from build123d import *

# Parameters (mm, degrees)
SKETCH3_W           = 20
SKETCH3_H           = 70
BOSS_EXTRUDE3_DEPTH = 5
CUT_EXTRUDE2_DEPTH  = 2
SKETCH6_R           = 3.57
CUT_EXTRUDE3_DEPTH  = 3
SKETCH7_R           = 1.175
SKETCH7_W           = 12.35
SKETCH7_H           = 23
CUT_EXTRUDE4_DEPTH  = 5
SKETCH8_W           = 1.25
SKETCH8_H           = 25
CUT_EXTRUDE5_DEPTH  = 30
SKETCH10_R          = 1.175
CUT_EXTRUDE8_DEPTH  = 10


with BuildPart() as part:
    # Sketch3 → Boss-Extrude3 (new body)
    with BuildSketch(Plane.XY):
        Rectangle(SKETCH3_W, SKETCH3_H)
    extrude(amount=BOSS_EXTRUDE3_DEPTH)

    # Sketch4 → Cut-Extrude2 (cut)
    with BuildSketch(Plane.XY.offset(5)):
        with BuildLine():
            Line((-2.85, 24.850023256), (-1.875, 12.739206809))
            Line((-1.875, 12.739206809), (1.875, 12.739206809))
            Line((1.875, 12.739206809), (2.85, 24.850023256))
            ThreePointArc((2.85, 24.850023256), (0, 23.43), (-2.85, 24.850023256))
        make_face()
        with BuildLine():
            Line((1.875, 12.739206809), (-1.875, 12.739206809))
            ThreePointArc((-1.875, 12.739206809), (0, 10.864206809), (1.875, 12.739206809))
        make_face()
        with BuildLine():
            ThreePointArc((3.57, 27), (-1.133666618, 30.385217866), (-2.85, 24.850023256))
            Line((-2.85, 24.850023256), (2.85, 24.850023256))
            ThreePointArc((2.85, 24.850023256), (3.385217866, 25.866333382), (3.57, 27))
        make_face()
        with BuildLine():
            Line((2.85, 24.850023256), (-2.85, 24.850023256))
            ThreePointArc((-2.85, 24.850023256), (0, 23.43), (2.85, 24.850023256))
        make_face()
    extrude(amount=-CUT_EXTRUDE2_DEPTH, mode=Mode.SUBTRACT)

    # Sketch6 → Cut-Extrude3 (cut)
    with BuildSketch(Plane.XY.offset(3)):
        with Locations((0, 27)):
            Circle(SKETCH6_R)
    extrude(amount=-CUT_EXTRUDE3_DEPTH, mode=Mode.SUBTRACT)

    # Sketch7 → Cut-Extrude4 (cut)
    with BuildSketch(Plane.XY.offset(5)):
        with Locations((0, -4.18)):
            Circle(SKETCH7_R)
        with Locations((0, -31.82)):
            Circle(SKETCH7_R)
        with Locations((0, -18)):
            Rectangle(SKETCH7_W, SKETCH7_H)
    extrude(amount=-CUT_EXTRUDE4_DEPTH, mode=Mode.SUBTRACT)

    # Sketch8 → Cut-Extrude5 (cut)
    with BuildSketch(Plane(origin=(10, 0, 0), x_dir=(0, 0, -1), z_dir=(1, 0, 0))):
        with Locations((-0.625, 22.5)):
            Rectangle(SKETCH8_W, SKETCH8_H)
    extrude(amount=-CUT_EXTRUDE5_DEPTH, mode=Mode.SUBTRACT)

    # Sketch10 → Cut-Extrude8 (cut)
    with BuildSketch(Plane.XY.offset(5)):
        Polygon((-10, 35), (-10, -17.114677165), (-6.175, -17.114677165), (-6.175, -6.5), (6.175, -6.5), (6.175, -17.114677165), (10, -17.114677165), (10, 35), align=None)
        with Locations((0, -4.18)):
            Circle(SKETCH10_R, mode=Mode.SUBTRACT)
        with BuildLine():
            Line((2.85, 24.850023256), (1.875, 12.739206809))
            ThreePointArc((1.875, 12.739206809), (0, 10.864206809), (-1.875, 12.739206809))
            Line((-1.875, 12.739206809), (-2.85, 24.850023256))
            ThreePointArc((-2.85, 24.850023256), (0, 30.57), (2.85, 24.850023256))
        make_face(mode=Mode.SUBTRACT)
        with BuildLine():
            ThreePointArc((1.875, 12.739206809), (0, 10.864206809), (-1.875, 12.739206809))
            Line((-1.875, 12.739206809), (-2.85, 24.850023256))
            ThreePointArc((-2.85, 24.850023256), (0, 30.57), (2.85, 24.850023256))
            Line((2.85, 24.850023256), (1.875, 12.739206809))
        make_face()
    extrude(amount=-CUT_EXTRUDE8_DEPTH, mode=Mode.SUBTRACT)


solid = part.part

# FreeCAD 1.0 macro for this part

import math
import FreeCAD as App
import Part
import Sketcher
Q = App.Units.Quantity


def add_polygon(sketch, points):
    """Adds a closed chain of lines whose ends are joined by coincident constraints."""
    first, n = sketch.GeometryCount, len(points)
    for a, b in zip(points, points[1:] + points[:1]):
        sketch.addGeometry(Part.LineSegment(App.Vector(*a, 0), App.Vector(*b, 0)), False)
    for i in range(n):
        sketch.addConstraint(Sketcher.Constraint("Coincident", first + i, 2, first + (i + 1) % n, 1))

doc = App.newDocument("Part")
body = doc.addObject("PartDesign::Body", "Body")

# Sketch on XY plane
sketch1 = body.newObject("Sketcher::SketchObject", "Sketch")
sketch1.AttachmentSupport = (doc.getObject("XY_Plane"), [""])
sketch1.MapMode = "FlatFace"
add_polygon(sketch1, [(-10, 35), (-10, -35), (10, -35), (10, 35)])  # lines 0-3
sketch1.addConstraint([
    Sketcher.Constraint("Vertical", 0),
    Sketcher.Constraint("Horizontal", 1),
    Sketcher.Constraint("Vertical", 2),
    Sketcher.Constraint("Horizontal", 3),
    Sketcher.Constraint("Symmetric", 0, 2, 2, 2, -1, 1),
    Sketcher.Constraint("DistanceX", 1, 1, 1, 2, Q("20 mm")),
    Sketcher.Constraint("DistanceY", 0, 2, 0, 1, Q("70 mm")),
])
pad1 = body.newObject("PartDesign::Pad", "Pad")
pad1.Profile = sketch1
pad1.Length = 5

# Sketch on XY plane
sketch2 = body.newObject("Sketcher::SketchObject", "Sketch001")
sketch2.AttachmentSupport = (doc.getObject("XY_Plane"), [""])
sketch2.MapMode = "FlatFace"
sketch2.AttachmentOffset = App.Placement(App.Vector(0, 0, 5), App.Rotation())
sketch2.addGeometry([
    Part.LineSegment(App.Vector(-2.85, 24.850023, 0), App.Vector(-1.875, 12.739207, 0)),  # 0
    Part.ArcOfCircle(Part.Circle(App.Vector(0, 12.739207, 0), App.Vector(0, 0, 1), 1.875), math.radians(180), math.radians(360)),  # 1
    Part.LineSegment(App.Vector(1.875, 12.739207, 0), App.Vector(2.85, 24.850023, 0)),  # 2
    Part.ArcOfCircle(Part.Circle(App.Vector(0, 27, 0), App.Vector(0, 0, 1), 3.57), math.radians(-37.030092), math.radians(0)),  # 3
    Part.ArcOfCircle(Part.Circle(App.Vector(0, 27, 0), App.Vector(0, 0, 1), 3.57), math.radians(0), math.radians(217.030092)),  # 4
], False)
sketch2.addConstraint([
    Sketcher.Constraint("Coincident", 0, 2, 1, 1),
    Sketcher.Constraint("Coincident", 1, 2, 2, 1),
    Sketcher.Constraint("Coincident", 2, 2, 3, 1),
    Sketcher.Constraint("Tangent", 3, 2, 4, 1),
    Sketcher.Constraint("Coincident", 4, 2, 0, 1),
    Sketcher.Constraint("Equal", 3, 4),
    Sketcher.Constraint("Symmetric", 0, 2, 1, 2, -2),
    Sketcher.Constraint("Symmetric", 2, 2, 4, 2, -2),
    Sketcher.Constraint("Horizontal", 1, 3, 0, 2),
    Sketcher.Constraint("Horizontal", 4, 3, 3, 2),
    Sketcher.Constraint("Radius", 3, Q("3.57 mm")),
    Sketcher.Constraint("DistanceY", -1, 1, 3, 3, Q("27 mm")),
    Sketcher.Constraint("Radius", 1, Q("1.875 mm")),
    Sketcher.Constraint("DistanceX", 4, 2, 2, 2, Q("5.7 mm")),
    Sketcher.Constraint("Distance", 0, Q("12.15 mm")),
])
pocket1 = body.newObject("PartDesign::Pocket", "Pocket")
pocket1.Profile = sketch2
pocket1.Length = 2

# Sketch on XY plane
sketch3 = body.newObject("Sketcher::SketchObject", "Sketch002")
sketch3.AttachmentSupport = (doc.getObject("XY_Plane"), [""])
sketch3.MapMode = "FlatFace"
sketch3.AttachmentOffset = App.Placement(App.Vector(0, 0, 3), App.Rotation())
sketch3.addGeometry(Part.Circle(App.Vector(0, 27, 0), App.Vector(0, 0, 1), 3.57), False)
sketch3.addConstraint([
    Sketcher.Constraint("PointOnObject", 0, 3, -2),
    Sketcher.Constraint("Diameter", 0, Q("7.14 mm")),
    Sketcher.Constraint("DistanceY", -1, 1, 0, 3, Q("27 mm")),
])
pocket2 = body.newObject("PartDesign::Pocket", "Pocket001")
pocket2.Profile = sketch3
pocket2.Length = 3

# Sketch on XY plane
sketch4 = body.newObject("Sketcher::SketchObject", "Sketch003")
sketch4.AttachmentSupport = (doc.getObject("XY_Plane"), [""])
sketch4.MapMode = "FlatFace"
sketch4.AttachmentOffset = App.Placement(App.Vector(0, 0, 5), App.Rotation())
sketch4.addGeometry(Part.Circle(App.Vector(0, -4.18, 0), App.Vector(0, 0, 1), 1.175), False)  # 0
sketch4.addGeometry(Part.Circle(App.Vector(0, -31.82, 0), App.Vector(0, 0, 1), 1.175), False)  # 1
add_polygon(sketch4, [(-6.175, -6.5), (-6.175, -29.5), (6.175, -29.5), (6.175, -6.5)])  # lines 2-5
sketch4.addConstraint([
    Sketcher.Constraint("Vertical", 2),
    Sketcher.Constraint("Horizontal", 3),
    Sketcher.Constraint("Vertical", 4),
    Sketcher.Constraint("Horizontal", 5),
    Sketcher.Constraint("Equal", 0, 1),
    Sketcher.Constraint("PointOnObject", 0, 3, -2),
    Sketcher.Constraint("PointOnObject", 1, 3, -2),
    Sketcher.Constraint("Diameter", 0, Q("2.35 mm")),
    Sketcher.Constraint("DistanceY", 2, 2, 2, 1, Q("23 mm")),
    Sketcher.Constraint("DistanceX", 3, 1, 3, 2, Q("12.35 mm")),
    Sketcher.Constraint("DistanceY", 2, 2, -1, 1, Q("29.5 mm")),
    Sketcher.Constraint("DistanceY", 0, 3, -1, 1, Q("4.18 mm")),
    Sketcher.Constraint("DistanceY", 1, 3, -1, 1, Q("31.82 mm")),
    Sketcher.Constraint("DistanceX", 2, 2, -1, 1, Q("6.175 mm")),
])
pocket3 = body.newObject("PartDesign::Pocket", "Pocket002")
pocket3.Profile = sketch4
pocket3.Length = 5

# Sketch on YZ plane
sketch5 = body.newObject("Sketcher::SketchObject", "Sketch004")
sketch5.AttachmentSupport = (doc.getObject("YZ_Plane"), [""])
sketch5.MapMode = "FlatFace"
sketch5.AttachmentOffset = App.Placement(App.Vector(0, 0, 10), App.Rotation())
add_polygon(sketch5, [(35, 1.25), (10, 1.25), (10, 0), (35, 0)])  # lines 0-3
sketch5.addConstraint([
    Sketcher.Constraint("Horizontal", 0),
    Sketcher.Constraint("Vertical", 1),
    Sketcher.Constraint("Horizontal", 2),
    Sketcher.Constraint("Vertical", 3),
    Sketcher.Constraint("PointOnObject", 1, 2, -1),
    Sketcher.Constraint("DistanceX", 0, 2, 0, 1, Q("25 mm")),
    Sketcher.Constraint("DistanceX", -1, 1, 0, 2, Q("10 mm")),
    Sketcher.Constraint("DistanceY", 1, 2, 1, 1, Q("1.25 mm")),
])
pocket4 = body.newObject("PartDesign::Pocket", "Pocket003")
pocket4.Profile = sketch5
pocket4.Length = 30

# Sketch on XY plane
sketch6 = body.newObject("Sketcher::SketchObject", "Sketch005")
sketch6.AttachmentSupport = (doc.getObject("XY_Plane"), [""])
sketch6.MapMode = "FlatFace"
sketch6.AttachmentOffset = App.Placement(App.Vector(0, 0, 5), App.Rotation())
add_polygon(sketch6, [(-10, 35), (-10, -17.114677), (-6.175, -17.114677), (-6.175, -6.5), (6.175, -6.5), (6.175, -17.114677), (10, -17.114677), (10, 35)])  # lines 0-7
sketch6.addGeometry(Part.Circle(App.Vector(0, -4.18, 0), App.Vector(0, 0, 1), 1.175), False)  # 8
sketch6.addConstraint([
    Sketcher.Constraint("Vertical", 0),
    Sketcher.Constraint("Horizontal", 1),
    Sketcher.Constraint("Vertical", 2),
    Sketcher.Constraint("Horizontal", 3),
    Sketcher.Constraint("Vertical", 4),
    Sketcher.Constraint("Horizontal", 5),
    Sketcher.Constraint("Vertical", 6),
    Sketcher.Constraint("Horizontal", 7),
    Sketcher.Constraint("Symmetric", 1, 2, 4, 2, -2),
    Sketcher.Constraint("PointOnObject", 8, 3, -2),
    Sketcher.Constraint("Equal", 1, 5),
    Sketcher.Constraint("Diameter", 8, Q("2.35 mm")),
    Sketcher.Constraint("DistanceX", 7, 2, 7, 1, Q("20 mm")),
    Sketcher.Constraint("DistanceY", -1, 1, 6, 2, Q("35 mm")),
    Sketcher.Constraint("DistanceX", 3, 1, 3, 2, Q("12.35 mm")),
    Sketcher.Constraint("DistanceY", 2, 2, -1, 1, Q("6.5 mm")),
    Sketcher.Constraint("DistanceY", 8, 3, -1, 1, Q("4.18 mm")),
    Sketcher.Constraint("DistanceY", 0, 2, 0, 1, Q("52.114677 mm")),
])
pocket5 = body.newObject("PartDesign::Pocket", "Pocket004")
pocket5.Profile = sketch6
pocket5.Length = 10

doc.recompute()
